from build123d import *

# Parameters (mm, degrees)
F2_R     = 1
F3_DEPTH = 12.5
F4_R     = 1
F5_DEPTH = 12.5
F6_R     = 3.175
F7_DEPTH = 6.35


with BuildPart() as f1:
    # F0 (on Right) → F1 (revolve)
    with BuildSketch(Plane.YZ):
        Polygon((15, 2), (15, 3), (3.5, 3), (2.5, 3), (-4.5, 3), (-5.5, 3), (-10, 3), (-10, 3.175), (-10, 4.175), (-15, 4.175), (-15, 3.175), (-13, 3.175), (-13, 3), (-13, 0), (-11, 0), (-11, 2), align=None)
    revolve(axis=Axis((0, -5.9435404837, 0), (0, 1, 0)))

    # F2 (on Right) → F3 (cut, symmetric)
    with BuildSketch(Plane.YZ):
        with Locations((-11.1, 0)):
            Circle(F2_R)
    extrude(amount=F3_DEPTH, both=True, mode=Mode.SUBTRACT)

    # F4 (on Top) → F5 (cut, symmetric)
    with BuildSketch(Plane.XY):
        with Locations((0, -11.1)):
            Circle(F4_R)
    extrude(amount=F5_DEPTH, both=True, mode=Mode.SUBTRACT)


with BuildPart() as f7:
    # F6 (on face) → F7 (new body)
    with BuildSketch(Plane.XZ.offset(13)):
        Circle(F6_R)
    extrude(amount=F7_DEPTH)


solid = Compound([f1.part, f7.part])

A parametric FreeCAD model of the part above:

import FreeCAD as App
import Part
import Sketcher
from FreeCAD import Vector

doc = App.newDocument("Part")
body = doc.addObject("PartDesign::Body", "Body")

sketch1 = body.newObject("Sketcher::SketchObject", "Sketch")
sketch1.AttachmentSupport = (doc.getObject("YZ_Plane"), [""])
sketch1.MapMode = "FlatFace"
sketch1.addGeometry([
    Part.LineSegment(Vector(15, 2, 0), Vector(15, 3, 0)),
    Part.LineSegment(Vector(15, 3, 0), Vector(-10, 3, 0)),
    Part.LineSegment(Vector(-10, 3, 0), Vector(-10, 4.175, 0)),
    Part.LineSegment(Vector(-10, 4.175, 0), Vector(-15, 4.175, 0)),
    Part.LineSegment(Vector(-15, 4.175, 0), Vector(-15, 3.175, 0)),
    Part.LineSegment(Vector(-15, 3.175, 0), Vector(-13, 3.175, 0)),
    Part.LineSegment(Vector(-13, 3.175, 0), Vector(-13, 0, 0)),
    Part.LineSegment(Vector(-13, 0, 0), Vector(-11, 0, 0)),
    Part.LineSegment(Vector(-11, 0, 0), Vector(-11, 2, 0)),
    Part.LineSegment(Vector(-11, 2, 0), Vector(15, 2, 0)),
], False)
sketch1.addConstraint([
    Sketcher.Constraint("Coincident", 0, 2, 1, 1),
    Sketcher.Constraint("Coincident", 1, 2, 2, 1),
    Sketcher.Constraint("Coincident", 2, 2, 3, 1),
    Sketcher.Constraint("Coincident", 3, 2, 4, 1),
    Sketcher.Constraint("Coincident", 4, 2, 5, 1),
    Sketcher.Constraint("Coincident", 5, 2, 6, 1),
    Sketcher.Constraint("Coincident", 6, 2, 7, 1),
    Sketcher.Constraint("Coincident", 7, 2, 8, 1),
    Sketcher.Constraint("Coincident", 8, 2, 9, 1),
    Sketcher.Constraint("Coincident", 9, 2, 0, 1),
    Sketcher.Constraint("Vertical", 0),
    Sketcher.Constraint("Horizontal", 1),
    Sketcher.Constraint("Vertical", 2),
    Sketcher.Constraint("Horizontal", 3),
    Sketcher.Constraint("Vertical", 4),
    Sketcher.Constraint("Horizontal", 5),
    Sketcher.Constraint("Vertical", 6),
    Sketcher.Constraint("Horizontal", 7),
    Sketcher.Constraint("Vertical", 8),
    Sketcher.Constraint("Horizontal", 9),
    Sketcher.Constraint("PointOnObject", 6, 2, -1),
    Sketcher.Constraint("Equal", 5, 7),
    Sketcher.Constraint("Equal", 0, 4),
    Sketcher.Constraint("Equal", 7, 8),
    Sketcher.Constraint("DistanceX", 1, 2, 1, 1, 25.0),
    Sketcher.Constraint("DistanceX", 3, 2, 3, 1, 5.0),
    Sketcher.Constraint("DistanceX", 5, 1, 5, 2, 2.0),
    Sketcher.Constraint("DistanceY", 0, 1, 0, 2, 1.0),
    Sketcher.Constraint("DistanceX", -1, 1, 0, 2, 15.0),
    Sketcher.Constraint("DistanceY", 2, 1, 2, 2, 1.175),
])
revolution = body.newObject("PartDesign::Revolution", "Revolution")
revolution.Profile = sketch1
revolution.ReferenceAxis = (sketch1, ["H_Axis"])
revolution.Angle = 360

sketch2 = body.newObject("Sketcher::SketchObject", "Sketch001")
sketch2.AttachmentSupport = (doc.getObject("YZ_Plane"), [""])
sketch2.MapMode = "FlatFace"
sketch2.addGeometry(Part.Circle(Vector(-11.1, 0, 0), Vector(0, 0, 1), 1), False)
sketch2.addConstraint([
    Sketcher.Constraint("PointOnObject", 0, 3, -1),
    Sketcher.Constraint("Diameter", 0, 2.0),
    Sketcher.Constraint("DistanceX", 0, 3, -1, 1, 11.1),
])
pocket1 = body.newObject("PartDesign::Pocket", "Pocket")
pocket1.Profile = sketch2
pocket1.Length = 25
pocket1.Midplane = True

sketch3 = body.newObject("Sketcher::SketchObject", "Sketch002")
sketch3.AttachmentSupport = (doc.getObject("XY_Plane"), [""])
sketch3.MapMode = "FlatFace"
sketch3.addGeometry(Part.Circle(Vector(0, -11.1, 0), Vector(0, 0, 1), 1), False)
sketch3.addConstraint([
    Sketcher.Constraint("PointOnObject", 0, 3, -2),
    Sketcher.Constraint("Diameter", 0, 2.0),
    Sketcher.Constraint("DistanceY", 0, 3, -1, 1, 11.1),
])
pocket2 = body.newObject("PartDesign::Pocket", "Pocket001")
pocket2.Profile = sketch3
pocket2.Length = 25
pocket2.Midplane = True
body2 = doc.addObject("PartDesign::Body", "Body001")

sketch4 = body2.newObject("Sketcher::SketchObject", "Sketch003")
sketch4.AttachmentSupport = (doc.getObject("XZ_Plane001"), [""])
sketch4.MapMode = "FlatFace"
sketch4.AttachmentOffset = App.Placement(Vector(0, 0, 13), App.Rotation())
sketch4.addGeometry(Part.Circle(Vector(0, 0, 0), Vector(0, 0, 1), 3.175), False)
sketch4.addConstraint([
    Sketcher.Constraint("Coincident", 0, 3, -1, 1),
    Sketcher.Constraint("Diameter", 0, 6.35),
])
pad1 = body2.newObject("PartDesign::Pad", "Pad")
pad1.Profile = sketch4
pad1.Length = 6.35

doc.recompute()
